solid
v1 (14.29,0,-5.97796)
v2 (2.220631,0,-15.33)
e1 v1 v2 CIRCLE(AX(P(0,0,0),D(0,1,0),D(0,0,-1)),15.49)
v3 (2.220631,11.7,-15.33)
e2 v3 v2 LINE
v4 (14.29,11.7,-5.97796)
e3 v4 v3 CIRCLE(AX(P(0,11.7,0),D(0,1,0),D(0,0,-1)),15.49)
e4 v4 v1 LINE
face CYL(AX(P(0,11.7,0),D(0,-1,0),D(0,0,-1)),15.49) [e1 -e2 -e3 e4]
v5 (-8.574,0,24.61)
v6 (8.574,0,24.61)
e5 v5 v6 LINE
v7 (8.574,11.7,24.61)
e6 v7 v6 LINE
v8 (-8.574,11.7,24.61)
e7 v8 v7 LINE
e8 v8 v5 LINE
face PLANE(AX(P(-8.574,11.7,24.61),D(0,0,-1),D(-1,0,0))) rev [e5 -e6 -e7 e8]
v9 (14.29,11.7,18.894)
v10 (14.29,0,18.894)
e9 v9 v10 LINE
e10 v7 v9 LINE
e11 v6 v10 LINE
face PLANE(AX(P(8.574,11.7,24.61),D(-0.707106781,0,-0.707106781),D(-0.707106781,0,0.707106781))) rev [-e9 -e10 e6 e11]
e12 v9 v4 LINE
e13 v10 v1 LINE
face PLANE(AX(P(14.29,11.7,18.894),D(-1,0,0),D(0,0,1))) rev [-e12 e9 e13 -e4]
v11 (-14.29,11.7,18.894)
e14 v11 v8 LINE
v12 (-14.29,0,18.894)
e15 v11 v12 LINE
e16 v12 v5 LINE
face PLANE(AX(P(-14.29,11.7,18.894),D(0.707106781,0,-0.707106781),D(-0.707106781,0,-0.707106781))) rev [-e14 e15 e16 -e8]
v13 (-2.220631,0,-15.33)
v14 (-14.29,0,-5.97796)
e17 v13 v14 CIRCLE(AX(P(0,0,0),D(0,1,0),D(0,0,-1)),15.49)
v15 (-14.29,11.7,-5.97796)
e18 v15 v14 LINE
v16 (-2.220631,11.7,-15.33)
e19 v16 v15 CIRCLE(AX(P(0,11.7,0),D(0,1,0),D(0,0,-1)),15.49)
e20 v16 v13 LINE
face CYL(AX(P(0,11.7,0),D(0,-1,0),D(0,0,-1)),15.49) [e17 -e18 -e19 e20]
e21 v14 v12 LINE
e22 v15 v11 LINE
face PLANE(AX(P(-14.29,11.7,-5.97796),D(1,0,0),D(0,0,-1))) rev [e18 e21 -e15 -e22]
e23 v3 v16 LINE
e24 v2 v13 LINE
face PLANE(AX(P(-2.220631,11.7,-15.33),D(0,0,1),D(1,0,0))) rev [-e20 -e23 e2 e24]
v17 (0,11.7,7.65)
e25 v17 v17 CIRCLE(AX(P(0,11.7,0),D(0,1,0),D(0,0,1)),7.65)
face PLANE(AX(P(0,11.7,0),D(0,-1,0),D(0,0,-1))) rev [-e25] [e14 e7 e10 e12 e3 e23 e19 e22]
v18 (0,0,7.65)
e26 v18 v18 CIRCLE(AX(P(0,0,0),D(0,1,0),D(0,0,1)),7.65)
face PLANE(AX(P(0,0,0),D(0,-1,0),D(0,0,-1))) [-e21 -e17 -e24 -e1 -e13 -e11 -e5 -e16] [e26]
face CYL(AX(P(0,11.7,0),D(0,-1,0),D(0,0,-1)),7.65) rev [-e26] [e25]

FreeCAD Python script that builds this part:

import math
import FreeCAD as App
import Part
import Sketcher

V = App.Vector
Q = App.Units.Quantity

doc = App.newDocument("Part")
body = doc.addObject("PartDesign::Body", "Body")

# Sketch on XZ plane
sketch1 = body.newObject("Sketcher::SketchObject", "Sketch")
sketch1.AttachmentSupport = (doc.getObject("XZ_Plane"), [""])
sketch1.MapMode = "FlatFace"
sketch1.addGeometry([
    Part.LineSegment(V(-14.29, -5.97796, 0), V(-14.29, 18.894, 0)),  # 0
    Part.LineSegment(V(-14.29, 18.894, 0), V(-8.574, 24.61, 0)),  # 1
    Part.LineSegment(V(-8.574, 24.61, 0), V(8.574, 24.61, 0)),  # 2
    Part.LineSegment(V(8.574, 24.61, 0), V(14.29, 18.894, 0)),  # 3
    Part.LineSegment(V(14.29, 18.894, 0), V(14.29, -5.97796, 0)),  # 4
    Part.ArcOfCircle(Part.Circle(V(0, 0, 0), V(0, 0, 1), 15.49), math.radians(-81.757737), math.radians(-22.701102)),  # 5
    Part.LineSegment(V(2.220631, -15.33, 0), V(-2.220631, -15.33, 0)),  # 6
    Part.ArcOfCircle(Part.Circle(V(0, 0, 0), V(0, 0, 1), 15.49), math.radians(-157.298898), math.radians(-98.242263)),  # 7
    Part.Circle(V(0, 0, 0), V(0, 0, 1), 7.65),  # 8
], False)
sketch1.addConstraint([
    Sketcher.Constraint("Coincident", 0, 2, 1, 1),
    Sketcher.Constraint("Coincident", 1, 2, 2, 1),
    Sketcher.Constraint("Coincident", 2, 2, 3, 1),
    Sketcher.Constraint("Coincident", 3, 2, 4, 1),
    Sketcher.Constraint("Coincident", 4, 2, 5, 2),
    Sketcher.Constraint("Coincident", 5, 1, 6, 1),
    Sketcher.Constraint("Coincident", 6, 2, 7, 2),
    Sketcher.Constraint("Coincident", 7, 1, 0, 1),
    Sketcher.Constraint("Vertical", 0),
    Sketcher.Constraint("Horizontal", 2),
    Sketcher.Constraint("Vertical", 4),
    Sketcher.Constraint("Horizontal", 6),
    Sketcher.Constraint("Coincident", 5, 3, -1, 1),
    Sketcher.Constraint("Coincident", 7, 3, -1, 1),
    Sketcher.Constraint("Coincident", 8, 3, -1, 1),
    Sketcher.Constraint("Equal", 5, 7),
    Sketcher.Constraint("Symmetric", 0, 2, 3, 2, -2),
    Sketcher.Constraint("Perpendicular", 1, 3),
    Sketcher.Constraint("Equal", 1, 3),
    Sketcher.Constraint("Diameter", 8, Q("15.3 mm")),
    Sketcher.Constraint("Radius", 5, Q("15.49 mm")),
    Sketcher.Constraint("DistanceX", 2, 1, 2, 2, Q("17.148 mm")),
    Sketcher.Constraint("DistanceX", 0, 2, -1, 1, Q("14.29 mm")),
    Sketcher.Constraint("DistanceY", -1, 1, 1, 2, Q("24.61 mm")),
    Sketcher.Constraint("DistanceY", 5, 1, -1, 1, Q("15.33 mm")),
])
pad1 = body.newObject("PartDesign::Pad", "Pad")
pad1.Profile = sketch1
pad1.Length = 11.7
pad1.Reversed = True

doc.recompute()
